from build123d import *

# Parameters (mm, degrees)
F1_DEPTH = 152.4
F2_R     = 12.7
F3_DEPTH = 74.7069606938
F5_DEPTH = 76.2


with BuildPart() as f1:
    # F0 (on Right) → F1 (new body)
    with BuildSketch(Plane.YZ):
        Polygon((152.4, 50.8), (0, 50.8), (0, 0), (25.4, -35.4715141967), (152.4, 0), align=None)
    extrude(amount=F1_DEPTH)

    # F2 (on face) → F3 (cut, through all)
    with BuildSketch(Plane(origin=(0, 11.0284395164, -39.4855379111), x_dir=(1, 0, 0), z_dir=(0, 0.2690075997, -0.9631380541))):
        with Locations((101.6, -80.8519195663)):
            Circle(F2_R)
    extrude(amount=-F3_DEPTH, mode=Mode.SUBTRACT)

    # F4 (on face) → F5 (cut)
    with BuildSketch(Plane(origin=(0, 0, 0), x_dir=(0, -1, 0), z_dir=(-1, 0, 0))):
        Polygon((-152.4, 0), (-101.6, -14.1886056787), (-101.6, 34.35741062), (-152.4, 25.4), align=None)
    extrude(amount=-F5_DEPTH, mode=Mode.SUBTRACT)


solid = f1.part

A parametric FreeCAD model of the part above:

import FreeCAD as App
import Part
import Sketcher
Q = App.Units.Quantity

doc = App.newDocument("Part")
params = doc.addObject("Spreadsheet::Sheet", "Params")
for row, (alias, value) in enumerate([
    ("sketch1_width", "6 in"),
    ("sketch1_height", "2 in"),
    ("pad1_length", "6 in"),
    ("sketch2_diameter", "1 in"),
    ("sketch3_height", "1 in"),
    ("pocket2_length", "3 in"),
], start=1):
    params.set(f"A{row}", alias)
    params.set(f"B{row}", "=" + value)
    params.setAlias(f"B{row}", alias)

body = doc.addObject("PartDesign::Body", "Body")

sketch1 = doc.addObject("Sketcher::SketchObject", "Sketch")
body.addObject(sketch1)
sketch1.AttachmentSupport = (doc.YZ_Plane, [""])
sketch1.MapMode = "FlatFace"
sketch1.addGeometry(Part.LineSegment(App.Vector(152.4, 50.8, 0), App.Vector(0, 50.8, 0)), False)
sketch1.addGeometry(Part.LineSegment(App.Vector(0, 50.8, 0), App.Vector(0, 0, 0)), False)
sketch1.addGeometry(Part.LineSegment(App.Vector(0, 0, 0), App.Vector(25.4, -35.471514, 0)), False)
sketch1.addGeometry(Part.LineSegment(App.Vector(25.4, -35.471514, 0), App.Vector(152.4, 0, 0)), False)
sketch1.addGeometry(Part.LineSegment(App.Vector(152.4, 0, 0), App.Vector(152.4, 50.8, 0)), False)
sketch1.addConstraint(Sketcher.Constraint("Coincident", 0, 2, 1, 1))
sketch1.addConstraint(Sketcher.Constraint("Coincident", 1, 2, 2, 1))
sketch1.addConstraint(Sketcher.Constraint("Coincident", 2, 2, 3, 1))
sketch1.addConstraint(Sketcher.Constraint("Coincident", 3, 2, 4, 1))
sketch1.addConstraint(Sketcher.Constraint("Coincident", 4, 2, 0, 1))
sketch1.addConstraint(Sketcher.Constraint("Horizontal", 0))
sketch1.addConstraint(Sketcher.Constraint("Vertical", 1))
sketch1.addConstraint(Sketcher.Constraint("Vertical", 4))
sketch1.addConstraint(Sketcher.Constraint("Coincident", 1, 2, -1, 1))
sketch1.addConstraint(Sketcher.Constraint("PointOnObject", 3, 2, -1))
sketch1.addConstraint(Sketcher.Constraint("DistanceX", 0, 2, 0, 1, Q("6 in")))
sketch1.addConstraint(Sketcher.Constraint("DistanceY", 1, 2, 1, 1, Q("2 in")))
sketch1.addConstraint(Sketcher.Constraint("DistanceX", -1, 1, 2, 2, Q("1 in")))
sketch1.addConstraint(Sketcher.Constraint("Distance", 2, Q("43.627839 mm")))
sketch1.setExpression("Constraints[10]", "Params.sketch1_width")
sketch1.setExpression("Constraints[11]", "Params.sketch1_height")
pad1 = doc.addObject("PartDesign::Pad", "Pad")
body.addObject(pad1)
pad1.Profile = sketch1
pad1.setExpression("Length", "Params.pad1_length")

sketch2 = doc.addObject("Sketcher::SketchObject", "Sketch001")
body.addObject(sketch2)
sketch2.Placement = App.Placement(App.Vector(0, 11.02844, -39.485538), App.Rotation(App.Vector(1, 0, 0), App.Vector(0, -0.963138054, -0.2690076), App.Vector(0, 0.2690076, -0.963138054), "ZXY"))
sketch2.addGeometry(Part.Circle(App.Vector(101.6, -80.85192, 0), App.Vector(0, 0, 1), 12.7), False)
sketch2.addConstraint(Sketcher.Constraint("Diameter", 0, Q("1 in")))
sketch2.addConstraint(Sketcher.Constraint("DistanceX", -1, 1, 0, 3, Q("4 in")))
sketch2.addConstraint(Sketcher.Constraint("DistanceY", 0, 3, -1, 1, Q("80.85192 mm")))
sketch2.setExpression("Constraints[0]", "Params.sketch2_diameter")
pocket1 = doc.addObject("PartDesign::Pocket", "Pocket")
body.addObject(pocket1)
pocket1.Profile = sketch2
pocket1.Type = "ThroughAll"

sketch3 = doc.addObject("Sketcher::SketchObject", "Sketch002")
body.addObject(sketch3)
sketch3.AttachmentSupport = (doc.YZ_Plane, [""])
sketch3.MapMode = "FlatFace"
sketch3.addGeometry(Part.LineSegment(App.Vector(152.4, 0, 0), App.Vector(101.6, -14.188606, 0)), False)
sketch3.addGeometry(Part.LineSegment(App.Vector(101.6, -14.188606, 0), App.Vector(101.6, 34.357411, 0)), False)
sketch3.addGeometry(Part.LineSegment(App.Vector(101.6, 34.357411, 0), App.Vector(152.4, 25.4, 0)), False)
sketch3.addGeometry(Part.LineSegment(App.Vector(152.4, 25.4, 0), App.Vector(152.4, 0, 0)), False)
sketch3.addConstraint(Sketcher.Constraint("Coincident", 0, 2, 1, 1))
sketch3.addConstraint(Sketcher.Constraint("Coincident", 1, 2, 2, 1))
sketch3.addConstraint(Sketcher.Constraint("Coincident", 2, 2, 3, 1))
sketch3.addConstraint(Sketcher.Constraint("Coincident", 3, 2, 0, 1))
sketch3.addConstraint(Sketcher.Constraint("Vertical", 1))
sketch3.addConstraint(Sketcher.Constraint("Vertical", 3))
sketch3.addConstraint(Sketcher.Constraint("PointOnObject", 3, 2, -1))
sketch3.addConstraint(Sketcher.Constraint("DistanceY", 3, 2, 3, 1, Q("1 in")))
sketch3.addConstraint(Sketcher.Constraint("DistanceX", -1, 1, 0, 2, Q("4 in")))
sketch3.addConstraint(Sketcher.Constraint("DistanceX", -1, 1, 2, 2, Q("6 in")))
sketch3.addConstraint(Sketcher.Constraint("Angle", 2, Q("-10 deg")))
sketch3.addConstraint(Sketcher.Constraint("DistanceY", 1, 1, 1, 2, Q("48.546016 mm")))
sketch3.setExpression("Constraints[7]", "Params.sketch3_height")
pocket2 = doc.addObject("PartDesign::Pocket", "Pocket001")
body.addObject(pocket2)
pocket2.Profile = sketch3
pocket2.setExpression("Length", "Params.pocket2_length")
pocket2.Reversed = True

doc.recompute()
